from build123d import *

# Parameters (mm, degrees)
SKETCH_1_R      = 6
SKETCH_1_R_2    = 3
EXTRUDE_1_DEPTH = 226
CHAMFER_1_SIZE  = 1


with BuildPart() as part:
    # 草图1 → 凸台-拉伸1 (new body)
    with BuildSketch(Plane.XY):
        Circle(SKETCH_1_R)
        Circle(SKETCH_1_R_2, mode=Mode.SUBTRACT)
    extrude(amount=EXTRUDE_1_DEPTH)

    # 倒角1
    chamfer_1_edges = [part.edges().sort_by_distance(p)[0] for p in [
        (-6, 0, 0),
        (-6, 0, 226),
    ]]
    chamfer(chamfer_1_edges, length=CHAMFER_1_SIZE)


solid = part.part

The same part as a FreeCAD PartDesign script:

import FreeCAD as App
import Part
import Sketcher


def edges_at(feature, points):
    """Names of the edges that pass closest to the given points."""
    edges = feature.Shape.Edges
    near = lambda p: min(range(len(edges)), key=lambda i: edges[i].distToShape(Part.Vertex(*p))[0])
    return sorted({f"Edge{near(p) + 1}" for p in points})

doc = App.newDocument("Part")
body = doc.addObject("PartDesign::Body", "Body")

sketch1 = doc.addObject("Sketcher::SketchObject", "Sketch")
body.addObject(sketch1)
sketch1.AttachmentSupport = (doc.XY_Plane, [""])
sketch1.MapMode = "FlatFace"
sketch1.addGeometry(Part.Circle(App.Vector(0, 0, 0), App.Vector(0, 0, 1), 6), False)
sketch1.addGeometry(Part.Circle(App.Vector(0, 0, 0), App.Vector(0, 0, 1), 3), False)
sketch1.addConstraint(Sketcher.Constraint("Coincident", 0, 3, -1, 1))
sketch1.addConstraint(Sketcher.Constraint("Coincident", 1, 3, -1, 1))
sketch1.addConstraint(Sketcher.Constraint("Diameter", 0, 12.0))
sketch1.addConstraint(Sketcher.Constraint("Diameter", 1, 6.0))
pad1 = doc.addObject("PartDesign::Pad", "Pad")
body.addObject(pad1)
pad1.Profile = sketch1
pad1.Length = 226
doc.recompute()

chamfer = doc.addObject("PartDesign::Chamfer", "Chamfer")
body.addObject(chamfer)
chamfer.Base = (pad1, edges_at(pad1, [(-6, 0, 0), (-6, 0, 226)]))
chamfer.Size = 1

doc.recompute()
